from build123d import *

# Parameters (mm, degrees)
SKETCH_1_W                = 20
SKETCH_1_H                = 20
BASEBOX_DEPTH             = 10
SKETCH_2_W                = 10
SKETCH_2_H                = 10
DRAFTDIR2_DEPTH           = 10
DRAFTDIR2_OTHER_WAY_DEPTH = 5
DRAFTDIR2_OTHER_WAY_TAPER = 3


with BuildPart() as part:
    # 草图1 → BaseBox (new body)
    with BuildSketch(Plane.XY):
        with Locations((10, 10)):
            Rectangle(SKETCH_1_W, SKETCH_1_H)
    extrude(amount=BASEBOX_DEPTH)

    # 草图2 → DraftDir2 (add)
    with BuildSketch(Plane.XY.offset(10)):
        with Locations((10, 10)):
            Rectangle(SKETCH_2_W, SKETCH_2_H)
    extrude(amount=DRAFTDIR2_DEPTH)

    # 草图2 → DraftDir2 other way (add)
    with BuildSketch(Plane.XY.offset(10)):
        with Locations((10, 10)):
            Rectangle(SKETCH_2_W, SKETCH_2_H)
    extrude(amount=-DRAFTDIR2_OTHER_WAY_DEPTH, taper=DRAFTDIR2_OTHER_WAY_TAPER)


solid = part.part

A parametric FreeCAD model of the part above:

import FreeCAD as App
import Part
import Sketcher
from FreeCAD import Vector
Q = App.Units.Quantity


def add_polygon(sketch, points):
    """Adds a closed chain of lines whose ends are joined by coincident constraints."""
    first, n = sketch.GeometryCount, len(points)
    for a, b in zip(points, points[1:] + points[:1]):
        sketch.addGeometry(Part.LineSegment(App.Vector(*a, 0), App.Vector(*b, 0)), False)
    for i in range(n):
        sketch.addConstraint(Sketcher.Constraint("Coincident", first + i, 2, first + (i + 1) % n, 1))

doc = App.newDocument("Part")
body = doc.addObject("PartDesign::Body", "Body")

# Sketch on XY plane
sketch1 = doc.addObject("Sketcher::SketchObject", "Sketch")
body.addObject(sketch1)
sketch1.AttachmentSupport = (doc.XY_Plane, [""])
sketch1.MapMode = "FlatFace"
add_polygon(sketch1, [(0, 20), (0, 0), (20, 0), (20, 20)])  # lines 0-3
sketch1.addConstraint([
    Sketcher.Constraint("Vertical", 0),
    Sketcher.Constraint("Horizontal", 1),
    Sketcher.Constraint("Vertical", 2),
    Sketcher.Constraint("Horizontal", 3),
    Sketcher.Constraint("Coincident", 0, 2, -1, 1),
    Sketcher.Constraint("Equal", 3, 0),
    Sketcher.Constraint("DistanceX", 1, 1, 1, 2, Q("20 mm")),
])
pad1 = doc.addObject("PartDesign::Pad", "Pad")
body.addObject(pad1)
pad1.Profile = sketch1
pad1.Length = 10

# Sketch on XY plane
sketch2 = doc.addObject("Sketcher::SketchObject", "Sketch001")
body.addObject(sketch2)
sketch2.AttachmentSupport = (doc.XY_Plane, [""])
sketch2.MapMode = "FlatFace"
sketch2.AttachmentOffset = App.Placement(Vector(0, 0, 10), App.Rotation())
add_polygon(sketch2, [(5, 15), (5, 5), (15, 5), (15, 15)])  # lines 0-3
sketch2.addConstraint([
    Sketcher.Constraint("Vertical", 0),
    Sketcher.Constraint("Horizontal", 1),
    Sketcher.Constraint("Vertical", 2),
    Sketcher.Constraint("Horizontal", 3),
    Sketcher.Constraint("Equal", 3, 0),
    Sketcher.Constraint("DistanceX", 1, 1, 1, 2, Q("10 mm")),
    Sketcher.Constraint("DistanceX", -1, 1, 0, 2, Q("5 mm")),
    Sketcher.Constraint("DistanceY", -1, 1, 0, 2, Q("5 mm")),
])
pad2 = doc.addObject("PartDesign::Pad", "Pad001")
body.addObject(pad2)
pad2.Profile = sketch2
pad2.Length = 10

# Sketch on XY plane
sketch3 = doc.addObject("Sketcher::SketchObject", "Sketch002")
body.addObject(sketch3)
sketch3.AttachmentSupport = (doc.XY_Plane, [""])
sketch3.MapMode = "FlatFace"
sketch3.AttachmentOffset = App.Placement(Vector(0, 0, 10), App.Rotation())
add_polygon(sketch3, [(5, 15), (5, 5), (15, 5), (15, 15)])  # lines 0-3
sketch3.addConstraint([
    Sketcher.Constraint("Vertical", 0),
    Sketcher.Constraint("Horizontal", 1),
    Sketcher.Constraint("Vertical", 2),
    Sketcher.Constraint("Horizontal", 3),
    Sketcher.Constraint("Equal", 3, 0),
    Sketcher.Constraint("DistanceX", 1, 1, 1, 2, Q("10 mm")),
    Sketcher.Constraint("DistanceX", -1, 1, 0, 2, Q("5 mm")),
    Sketcher.Constraint("DistanceY", -1, 1, 0, 2, Q("5 mm")),
])
pad3 = doc.addObject("PartDesign::Pad", "Pad002")
body.addObject(pad3)
pad3.Profile = sketch3
pad3.Length = 5
pad3.Reversed = True
pad3.TaperAngle = -3

doc.recompute()
